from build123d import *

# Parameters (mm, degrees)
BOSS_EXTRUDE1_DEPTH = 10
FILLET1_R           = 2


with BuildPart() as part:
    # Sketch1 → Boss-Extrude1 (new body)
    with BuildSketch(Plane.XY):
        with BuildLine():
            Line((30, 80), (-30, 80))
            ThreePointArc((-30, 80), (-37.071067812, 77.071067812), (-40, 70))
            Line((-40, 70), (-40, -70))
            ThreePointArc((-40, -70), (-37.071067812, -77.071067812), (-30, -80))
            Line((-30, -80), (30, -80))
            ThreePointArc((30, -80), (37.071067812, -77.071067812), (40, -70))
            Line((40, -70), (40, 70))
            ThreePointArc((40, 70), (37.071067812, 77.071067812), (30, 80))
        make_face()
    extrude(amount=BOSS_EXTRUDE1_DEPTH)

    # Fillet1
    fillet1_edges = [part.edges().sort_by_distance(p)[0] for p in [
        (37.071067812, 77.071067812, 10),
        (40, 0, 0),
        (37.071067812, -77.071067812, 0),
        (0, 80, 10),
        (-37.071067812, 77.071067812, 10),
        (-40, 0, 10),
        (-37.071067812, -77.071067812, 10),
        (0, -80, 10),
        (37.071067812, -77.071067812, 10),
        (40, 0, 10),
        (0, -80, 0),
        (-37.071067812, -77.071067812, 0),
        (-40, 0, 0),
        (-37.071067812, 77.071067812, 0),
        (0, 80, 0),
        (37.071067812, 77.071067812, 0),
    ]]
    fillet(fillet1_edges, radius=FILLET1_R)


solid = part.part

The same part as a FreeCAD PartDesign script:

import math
import FreeCAD as App
import Part
import Sketcher


def edges_at(feature, points):
    """Names of the edges that pass closest to the given points."""
    edges = feature.Shape.Edges
    near = lambda p: min(range(len(edges)), key=lambda i: edges[i].distToShape(Part.Vertex(*p))[0])
    return sorted({f"Edge{near(p) + 1}" for p in points})

doc = App.newDocument("Part")
params = doc.addObject("Spreadsheet::Sheet", "Params")
for row, (alias, value) in enumerate([
    ("sketch1_radius", "10 mm"),
    ("sketch1_width", "60 mm"),
    ("sketch1_height", "140 mm"),
    ("pad1_length", "10 mm"),
    ("fillet_radius", "2 mm"),
], start=1):
    params.set(f"A{row}", alias)
    params.set(f"B{row}", "=" + value)
    params.setAlias(f"B{row}", alias)

body = doc.addObject("PartDesign::Body", "Body")

# Sketch on XY plane
sketch1 = doc.addObject("Sketcher::SketchObject", "Sketch")
body.addObject(sketch1)
sketch1.AttachmentSupport = (doc.XY_Plane, [""])
sketch1.MapMode = "FlatFace"
sketch1.addGeometry(Part.LineSegment(App.Vector(30, 80, 0), App.Vector(-30, 80, 0)), False)
sketch1.addGeometry(Part.ArcOfCircle(Part.Circle(App.Vector(-30, 70, 0), App.Vector(0, 0, 1), 10), math.radians(90), math.radians(180)), False)
sketch1.addGeometry(Part.LineSegment(App.Vector(-40, 70, 0), App.Vector(-40, -70, 0)), False)
sketch1.addGeometry(Part.ArcOfCircle(Part.Circle(App.Vector(-30, -70, 0), App.Vector(0, 0, 1), 10), math.radians(180), math.radians(270)), False)
sketch1.addGeometry(Part.LineSegment(App.Vector(-30, -80, 0), App.Vector(30, -80, 0)), False)
sketch1.addGeometry(Part.ArcOfCircle(Part.Circle(App.Vector(30, -70, 0), App.Vector(0, 0, 1), 10), math.radians(-90), math.radians(0)), False)
sketch1.addGeometry(Part.LineSegment(App.Vector(40, -70, 0), App.Vector(40, 70, 0)), False)
sketch1.addGeometry(Part.ArcOfCircle(Part.Circle(App.Vector(30, 70, 0), App.Vector(0, 0, 1), 10), math.radians(0), math.radians(90)), False)
sketch1.addConstraint(Sketcher.Constraint("Tangent", 0, 2, 1, 1))
sketch1.addConstraint(Sketcher.Constraint("Tangent", 1, 2, 2, 1))
sketch1.addConstraint(Sketcher.Constraint("Tangent", 2, 2, 3, 1))
sketch1.addConstraint(Sketcher.Constraint("Tangent", 3, 2, 4, 1))
sketch1.addConstraint(Sketcher.Constraint("Tangent", 4, 2, 5, 1))
sketch1.addConstraint(Sketcher.Constraint("Tangent", 5, 2, 6, 1))
sketch1.addConstraint(Sketcher.Constraint("Tangent", 6, 2, 7, 1))
sketch1.addConstraint(Sketcher.Constraint("Tangent", 7, 2, 0, 1))
sketch1.addConstraint(Sketcher.Constraint("Horizontal", 0))
sketch1.addConstraint(Sketcher.Constraint("Vertical", 2))
sketch1.addConstraint(Sketcher.Constraint("Horizontal", 4))
sketch1.addConstraint(Sketcher.Constraint("Vertical", 6))
sketch1.addConstraint(Sketcher.Constraint("Equal", 1, 3))
sketch1.addConstraint(Sketcher.Constraint("Equal", 3, 5))
sketch1.addConstraint(Sketcher.Constraint("Equal", 5, 7))
sketch1.addConstraint(Sketcher.Constraint("Symmetric", 1, 3, 5, 3, -1, 1))
sketch1.addConstraint(Sketcher.Constraint("Radius", 1, 10.0))
sketch1.addConstraint(Sketcher.Constraint("DistanceX", 0, 2, 0, 1, 60.0))
sketch1.addConstraint(Sketcher.Constraint("DistanceY", 2, 2, 2, 1, 140.0))
sketch1.setExpression("Constraints[16]", "Params.sketch1_radius")
sketch1.setExpression("Constraints[17]", "Params.sketch1_width")
sketch1.setExpression("Constraints[18]", "Params.sketch1_height")
pad1 = doc.addObject("PartDesign::Pad", "Pad")
body.addObject(pad1)
pad1.Profile = sketch1
pad1.setExpression("Length", "Params.pad1_length")
doc.recompute()

fillet = doc.addObject("PartDesign::Fillet", "Fillet")
body.addObject(fillet)
fillet.Base = (pad1, edges_at(pad1, [
    (37.071, 77.071, 10),
    (40, 0, 0),
    (37.071, -77.071, 0),
    (0, 80, 10),
    (-37.071, 77.071, 10),
    (-40, 0, 10),
    (-37.071, -77.071, 10),
    (0, -80, 10),
    (37.071, -77.071, 10),
    (40, 0, 10),
    (0, -80, 0),
    (-37.071, -77.071, 0),
    (-40, 0, 0),
    (-37.071, 77.071, 0),
    (0, 80, 0),
    (37.071, 77.071, 0),
]))
fillet.setExpression("Radius", "Params.fillet_radius")

doc.recompute()
